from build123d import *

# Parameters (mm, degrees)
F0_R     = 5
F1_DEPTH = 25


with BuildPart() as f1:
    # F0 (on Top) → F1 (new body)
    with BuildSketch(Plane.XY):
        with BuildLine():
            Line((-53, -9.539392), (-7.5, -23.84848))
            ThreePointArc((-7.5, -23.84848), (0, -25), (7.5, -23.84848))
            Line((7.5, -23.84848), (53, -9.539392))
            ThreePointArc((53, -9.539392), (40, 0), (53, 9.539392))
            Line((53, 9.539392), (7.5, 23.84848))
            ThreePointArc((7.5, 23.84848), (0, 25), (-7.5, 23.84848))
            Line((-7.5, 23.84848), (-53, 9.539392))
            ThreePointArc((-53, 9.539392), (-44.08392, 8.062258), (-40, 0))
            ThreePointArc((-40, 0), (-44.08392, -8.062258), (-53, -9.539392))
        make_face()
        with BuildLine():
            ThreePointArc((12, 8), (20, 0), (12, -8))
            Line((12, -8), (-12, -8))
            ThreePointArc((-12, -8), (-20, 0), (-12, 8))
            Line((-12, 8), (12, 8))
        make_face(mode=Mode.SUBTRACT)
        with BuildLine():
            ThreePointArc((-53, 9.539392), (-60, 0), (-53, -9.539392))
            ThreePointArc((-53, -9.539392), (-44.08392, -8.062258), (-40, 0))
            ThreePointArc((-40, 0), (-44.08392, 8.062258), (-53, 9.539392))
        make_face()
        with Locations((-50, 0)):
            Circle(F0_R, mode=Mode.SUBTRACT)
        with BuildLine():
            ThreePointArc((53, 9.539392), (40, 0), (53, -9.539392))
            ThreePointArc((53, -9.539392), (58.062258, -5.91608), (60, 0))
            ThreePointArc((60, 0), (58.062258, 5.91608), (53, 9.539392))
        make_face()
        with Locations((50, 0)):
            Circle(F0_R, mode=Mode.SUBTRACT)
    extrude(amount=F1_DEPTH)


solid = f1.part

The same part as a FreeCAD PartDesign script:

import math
import FreeCAD as App
import Part
import Sketcher
Q = App.Units.Quantity

doc = App.newDocument("Part")
body = doc.addObject("PartDesign::Body", "Body")

# Sketch on XY plane
sketch1 = body.newObject("Sketcher::SketchObject", "Sketch")
sketch1.AttachmentSupport = (doc.getObject("XY_Plane"), [""])
sketch1.MapMode = "FlatFace"
sketch1.addGeometry([
    Part.LineSegment(App.Vector(-53, -10, 0), App.Vector(-8, -24, 0)),  # 0
    Part.ArcOfCircle(Part.Circle(App.Vector(0, 0, 0), App.Vector(0, 0, 1), 25), math.radians(-107), math.radians(-73)),  # 1
    Part.LineSegment(App.Vector(8, -24, 0), App.Vector(53, -10, 0)),  # 2
    Part.ArcOfCircle(Part.Circle(App.Vector(50, 0, 0), App.Vector(0, 0, 1), 10), math.radians(-73), math.radians(0)),  # 3
    Part.ArcOfCircle(Part.Circle(App.Vector(50, 0, 0), App.Vector(0, 0, 1), 10), math.radians(0), math.radians(73)),  # 4
    Part.LineSegment(App.Vector(53, 10, 0), App.Vector(8, 24, 0)),  # 5
    Part.ArcOfCircle(Part.Circle(App.Vector(0, 0, 0), App.Vector(0, 0, 1), 25), math.radians(73), math.radians(107)),  # 6
    Part.LineSegment(App.Vector(-8, 24, 0), App.Vector(-53, 10, 0)),  # 7
    Part.ArcOfCircle(Part.Circle(App.Vector(-50, 0, 0), App.Vector(0, 0, 1), 10), math.radians(107), math.radians(253)),  # 8
    Part.Circle(App.Vector(-50, 0, 0), App.Vector(0, 0, 1), 5),  # 9
    Part.LineSegment(App.Vector(-12, 8, 0), App.Vector(12, 8, 0)),  # 10
    Part.ArcOfCircle(Part.Circle(App.Vector(12, 0, 0), App.Vector(0, 0, 1), 8), math.radians(-90), math.radians(90)),  # 11
    Part.LineSegment(App.Vector(12, -8, 0), App.Vector(-12, -8, 0)),  # 12
    Part.ArcOfCircle(Part.Circle(App.Vector(-12, 0, 0), App.Vector(0, 0, 1), 8), math.radians(90), math.radians(270)),  # 13
    Part.Circle(App.Vector(50, 0, 0), App.Vector(0, 0, 1), 5),  # 14
], False)
sketch1.addConstraint([
    Sketcher.Constraint("Tangent", 0, 2, 1, 1),
    Sketcher.Constraint("Tangent", 1, 2, 2, 1),
    Sketcher.Constraint("Tangent", 2, 2, 3, 1),
    Sketcher.Constraint("Tangent", 3, 2, 4, 1),
    Sketcher.Constraint("Tangent", 4, 2, 5, 1),
    Sketcher.Constraint("Tangent", 5, 2, 6, 1),
    Sketcher.Constraint("Tangent", 6, 2, 7, 1),
    Sketcher.Constraint("Tangent", 7, 2, 8, 1),
    Sketcher.Constraint("Tangent", 8, 2, 0, 1),
    Sketcher.Constraint("Tangent", 10, 2, 11, 2),
    Sketcher.Constraint("Tangent", 11, 1, 12, 1),
    Sketcher.Constraint("Tangent", 12, 2, 13, 2),
    Sketcher.Constraint("Tangent", 13, 1, 10, 1),
    Sketcher.Constraint("Horizontal", 10),
    Sketcher.Constraint("Horizontal", 12),
    Sketcher.Constraint("Coincident", 1, 3, -1, 1),
    Sketcher.Constraint("Coincident", 6, 3, -1, 1),
    Sketcher.Constraint("Coincident", 9, 3, 8, 3),
    Sketcher.Constraint("Coincident", 14, 3, 3, 3),
    Sketcher.Constraint("Equal", 3, 4),
    Sketcher.Constraint("Equal", 1, 6),
    Sketcher.Constraint("Equal", 4, 8),
    Sketcher.Constraint("Equal", 9, 14),
    Sketcher.Constraint("Symmetric", 3, 3, 8, 3, -1, 1),
    Sketcher.Constraint("Symmetric", 11, 3, 13, 3, -1, 1),
    Sketcher.Constraint("PointOnObject", 3, 3, -1),
    Sketcher.Constraint("PointOnObject", 3, 2, -1),
    Sketcher.Constraint("Diameter", 9, Q("10 mm")),
    Sketcher.Constraint("Radius", 1, Q("24.999999 mm")),
    Sketcher.Constraint("Radius", 3, Q("9.999999 mm")),
    Sketcher.Constraint("Radius", 11, Q("8 mm")),
    Sketcher.Constraint("DistanceX", 10, 1, 10, 2, Q("24 mm")),
    Sketcher.Constraint("DistanceX", -1, 1, 3, 3, Q("50.000001 mm")),
])
pad1 = body.newObject("PartDesign::Pad", "Pad")
pad1.Profile = sketch1
pad1.Length = 25

doc.recompute()
